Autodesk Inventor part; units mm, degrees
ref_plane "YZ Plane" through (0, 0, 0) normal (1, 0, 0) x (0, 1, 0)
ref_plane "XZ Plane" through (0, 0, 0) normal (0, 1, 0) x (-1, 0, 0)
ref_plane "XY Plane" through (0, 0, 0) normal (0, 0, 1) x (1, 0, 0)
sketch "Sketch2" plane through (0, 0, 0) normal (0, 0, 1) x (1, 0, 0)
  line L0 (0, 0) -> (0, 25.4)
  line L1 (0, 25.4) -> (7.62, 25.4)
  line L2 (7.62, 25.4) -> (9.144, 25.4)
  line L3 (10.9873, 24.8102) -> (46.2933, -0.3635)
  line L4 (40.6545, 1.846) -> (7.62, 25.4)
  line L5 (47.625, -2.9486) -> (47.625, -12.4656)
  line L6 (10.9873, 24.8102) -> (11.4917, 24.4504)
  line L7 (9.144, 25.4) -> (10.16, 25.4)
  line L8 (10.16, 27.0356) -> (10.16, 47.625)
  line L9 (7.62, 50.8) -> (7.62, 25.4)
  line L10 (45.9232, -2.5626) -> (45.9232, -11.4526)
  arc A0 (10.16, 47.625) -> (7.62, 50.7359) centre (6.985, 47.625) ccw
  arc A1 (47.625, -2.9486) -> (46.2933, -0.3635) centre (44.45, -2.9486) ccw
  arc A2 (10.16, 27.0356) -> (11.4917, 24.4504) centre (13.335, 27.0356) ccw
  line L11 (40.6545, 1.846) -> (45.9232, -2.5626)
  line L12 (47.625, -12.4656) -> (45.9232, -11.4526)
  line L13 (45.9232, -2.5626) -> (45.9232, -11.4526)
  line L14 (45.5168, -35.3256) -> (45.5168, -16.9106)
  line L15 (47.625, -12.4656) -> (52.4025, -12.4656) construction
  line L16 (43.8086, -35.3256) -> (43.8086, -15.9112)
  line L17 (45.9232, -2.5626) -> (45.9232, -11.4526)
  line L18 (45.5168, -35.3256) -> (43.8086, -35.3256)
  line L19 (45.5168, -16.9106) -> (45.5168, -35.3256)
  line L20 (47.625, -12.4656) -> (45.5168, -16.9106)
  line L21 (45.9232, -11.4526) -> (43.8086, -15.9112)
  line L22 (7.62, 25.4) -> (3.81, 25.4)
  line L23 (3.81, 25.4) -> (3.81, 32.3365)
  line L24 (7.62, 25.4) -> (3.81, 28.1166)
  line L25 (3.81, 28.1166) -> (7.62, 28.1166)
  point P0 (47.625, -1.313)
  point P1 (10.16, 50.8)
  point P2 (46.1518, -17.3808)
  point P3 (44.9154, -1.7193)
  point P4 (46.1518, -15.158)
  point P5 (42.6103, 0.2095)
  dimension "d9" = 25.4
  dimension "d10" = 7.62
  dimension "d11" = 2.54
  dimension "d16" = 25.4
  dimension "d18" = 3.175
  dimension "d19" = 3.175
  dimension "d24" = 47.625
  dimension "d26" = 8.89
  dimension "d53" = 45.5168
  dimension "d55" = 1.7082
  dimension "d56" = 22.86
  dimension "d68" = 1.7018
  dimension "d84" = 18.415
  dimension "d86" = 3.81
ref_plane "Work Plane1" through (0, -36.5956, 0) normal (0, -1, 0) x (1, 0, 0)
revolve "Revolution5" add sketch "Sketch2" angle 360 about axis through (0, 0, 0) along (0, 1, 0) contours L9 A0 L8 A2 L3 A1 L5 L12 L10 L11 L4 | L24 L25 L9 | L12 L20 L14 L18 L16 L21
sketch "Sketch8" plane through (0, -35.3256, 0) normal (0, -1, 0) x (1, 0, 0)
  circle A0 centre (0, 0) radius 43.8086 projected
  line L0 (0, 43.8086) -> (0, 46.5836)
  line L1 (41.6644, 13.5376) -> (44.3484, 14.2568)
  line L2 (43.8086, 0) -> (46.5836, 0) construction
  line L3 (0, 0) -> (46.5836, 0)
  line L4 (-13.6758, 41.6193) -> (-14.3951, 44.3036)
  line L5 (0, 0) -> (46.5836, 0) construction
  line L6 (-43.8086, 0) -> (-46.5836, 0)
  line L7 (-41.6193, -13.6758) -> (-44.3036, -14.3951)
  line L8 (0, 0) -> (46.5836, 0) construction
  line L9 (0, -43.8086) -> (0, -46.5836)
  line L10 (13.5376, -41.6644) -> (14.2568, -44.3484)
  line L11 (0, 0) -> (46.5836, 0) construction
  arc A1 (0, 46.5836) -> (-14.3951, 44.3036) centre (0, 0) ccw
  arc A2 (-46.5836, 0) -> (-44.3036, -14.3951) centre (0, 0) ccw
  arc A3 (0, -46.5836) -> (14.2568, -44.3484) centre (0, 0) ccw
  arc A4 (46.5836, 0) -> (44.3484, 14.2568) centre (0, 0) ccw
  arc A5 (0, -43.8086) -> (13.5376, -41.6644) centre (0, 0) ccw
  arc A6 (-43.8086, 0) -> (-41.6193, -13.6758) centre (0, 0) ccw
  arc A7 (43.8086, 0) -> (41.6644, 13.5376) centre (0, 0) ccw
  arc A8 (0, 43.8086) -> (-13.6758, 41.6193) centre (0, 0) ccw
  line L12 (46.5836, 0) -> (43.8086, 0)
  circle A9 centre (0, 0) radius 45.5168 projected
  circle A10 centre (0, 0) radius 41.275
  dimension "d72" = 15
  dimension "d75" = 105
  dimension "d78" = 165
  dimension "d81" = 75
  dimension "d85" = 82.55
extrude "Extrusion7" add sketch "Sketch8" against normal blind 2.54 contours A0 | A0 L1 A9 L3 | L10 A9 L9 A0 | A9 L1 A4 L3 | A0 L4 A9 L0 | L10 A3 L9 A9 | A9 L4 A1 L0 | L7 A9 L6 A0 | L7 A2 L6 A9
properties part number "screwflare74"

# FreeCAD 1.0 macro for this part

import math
import FreeCAD as App
import Part
import Sketcher
Q = App.Units.Quantity

doc = App.newDocument("Part")
body = doc.addObject("PartDesign::Body", "Body")

sketch1 = body.newObject("Sketcher::SketchObject", "Sketch")
sketch1.AttachmentSupport = (doc.getObject("XY_Plane"), [""])
sketch1.MapMode = "FlatFace"
sketch1.addGeometry(Part.LineSegment(App.Vector(7.6, 50.7, 0), App.Vector(7.6, 28.1, 0)), False)
sketch1.addGeometry(Part.LineSegment(App.Vector(7.6, 28.1, 0), App.Vector(3.8, 28.1, 0)), False)
sketch1.addGeometry(Part.LineSegment(App.Vector(3.8, 28.1, 0), App.Vector(7.6, 25.4, 0)), False)
sketch1.addGeometry(Part.LineSegment(App.Vector(7.6, 25.4, 0), App.Vector(40.7, 1.8, 0)), False)
sketch1.addGeometry(Part.LineSegment(App.Vector(40.7, 1.8, 0), App.Vector(45.9, -2.6, 0)), False)
sketch1.addGeometry(Part.LineSegment(App.Vector(45.9, -2.6, 0), App.Vector(45.9, -11.5, 0)), False)
sketch1.addGeometry(Part.LineSegment(App.Vector(45.9, -11.5, 0), App.Vector(43.8, -15.9, 0)), False)
sketch1.addGeometry(Part.LineSegment(App.Vector(43.8, -15.9, 0), App.Vector(43.8, -35.3, 0)), False)
sketch1.addGeometry(Part.LineSegment(App.Vector(43.8, -35.3, 0), App.Vector(45.5, -35.3, 0)), False)
sketch1.addGeometry(Part.LineSegment(App.Vector(45.5, -35.3, 0), App.Vector(45.5, -16.9, 0)), False)
sketch1.addGeometry(Part.LineSegment(App.Vector(45.5, -16.9, 0), App.Vector(47.6, -12.5, 0)), False)
sketch1.addGeometry(Part.LineSegment(App.Vector(47.6, -12.5, 0), App.Vector(47.6, -2.9, 0)), False)
sketch1.addGeometry(Part.ArcOfCircle(Part.Circle(App.Vector(44.5, -2.9, 0), App.Vector(0, 0, 1), 3.2), math.radians(0), math.radians(55)), False)
sketch1.addGeometry(Part.LineSegment(App.Vector(46.3, -0.4, 0), App.Vector(11.5, 24.5, 0)), False)
sketch1.addGeometry(Part.ArcOfCircle(Part.Circle(App.Vector(13.3, 27, 0), App.Vector(0, 0, 1), 3.2), math.radians(180), math.radians(235)), False)
sketch1.addGeometry(Part.LineSegment(App.Vector(10.2, 27, 0), App.Vector(10.2, 47.6, 0)), False)
sketch1.addGeometry(Part.ArcOfCircle(Part.Circle(App.Vector(7, 47.6, 0), App.Vector(0, 0, 1), 3.2), math.radians(0), math.radians(78)), False)
sketch1.addConstraint(Sketcher.Constraint("Coincident", 0, 2, 1, 1))
sketch1.addConstraint(Sketcher.Constraint("Coincident", 1, 2, 2, 1))
sketch1.addConstraint(Sketcher.Constraint("Coincident", 2, 2, 3, 1))
sketch1.addConstraint(Sketcher.Constraint("Coincident", 3, 2, 4, 1))
sketch1.addConstraint(Sketcher.Constraint("Coincident", 4, 2, 5, 1))
sketch1.addConstraint(Sketcher.Constraint("Coincident", 5, 2, 6, 1))
sketch1.addConstraint(Sketcher.Constraint("Coincident", 6, 2, 7, 1))
sketch1.addConstraint(Sketcher.Constraint("Coincident", 7, 2, 8, 1))
sketch1.addConstraint(Sketcher.Constraint("Coincident", 8, 2, 9, 1))
sketch1.addConstraint(Sketcher.Constraint("Coincident", 9, 2, 10, 1))
sketch1.addConstraint(Sketcher.Constraint("Coincident", 10, 2, 11, 1))
sketch1.addConstraint(Sketcher.Constraint("Tangent", 11, 2, 12, 1))
sketch1.addConstraint(Sketcher.Constraint("Tangent", 12, 2, 13, 1))
sketch1.addConstraint(Sketcher.Constraint("Tangent", 13, 2, 14, 2))
sketch1.addConstraint(Sketcher.Constraint("Tangent", 14, 1, 15, 1))
sketch1.addConstraint(Sketcher.Constraint("Tangent", 15, 2, 16, 1))
sketch1.addConstraint(Sketcher.Constraint("Coincident", 16, 2, 0, 1))
sketch1.addConstraint(Sketcher.Constraint("Vertical", 0))
sketch1.addConstraint(Sketcher.Constraint("Horizontal", 1))
sketch1.addConstraint(Sketcher.Constraint("Vertical", 5))
sketch1.addConstraint(Sketcher.Constraint("Vertical", 7))
sketch1.addConstraint(Sketcher.Constraint("Horizontal", 8))
sketch1.addConstraint(Sketcher.Constraint("Vertical", 9))
sketch1.addConstraint(Sketcher.Constraint("Vertical", 11))
sketch1.addConstraint(Sketcher.Constraint("Vertical", 15))
sketch1.addConstraint(Sketcher.Constraint("Equal", 12, 14))
sketch1.addConstraint(Sketcher.Constraint("Equal", 14, 16))
sketch1.addConstraint(Sketcher.Constraint("Parallel", 2, 3))
sketch1.addConstraint(Sketcher.Constraint("Parallel", 6, 10))
sketch1.addConstraint(Sketcher.Constraint("Parallel", 3, 13))
sketch1.addConstraint(Sketcher.Constraint("Vertical", 0, 2, 2, 2))
sketch1.addConstraint(Sketcher.Constraint("DistanceY", -1, 1, 2, 2, Q("1 in")))
sketch1.addConstraint(Sketcher.Constraint("Radius", 12, Q("0.125 in")))
sketch1.addConstraint(Sketcher.Constraint("DistanceX", 1, 2, 1, 1, Q("0.15 in")))
sketch1.addConstraint(Sketcher.Constraint("DistanceY", 5, 2, 5, 1, Q("0.35 in")))
sketch1.addConstraint(Sketcher.Constraint("DistanceX", -1, 1, 0, 2, Q("0.3 in")))
sketch1.addConstraint(Sketcher.Constraint("DistanceX", 0, 2, 14, 1, Q("0.1 in")))
sketch1.addConstraint(Sketcher.Constraint("DistanceY", 9, 1, 9, 2, Q("0.725 in")))
sketch1.addConstraint(Sketcher.Constraint("DistanceY", -1, 1, 16, 3, Q("1.875 in")))
sketch1.addConstraint(Sketcher.Constraint("DistanceX", -1, 1, 8, 2, Q("1.792 in")))
sketch1.addConstraint(Sketcher.Constraint("DistanceX", -1, 1, 10, 2, Q("1.875 in")))
sketch1.addConstraint(Sketcher.Constraint("DistanceX", 5, 2, 10, 2, Q("0.067 in")))
sketch1.addConstraint(Sketcher.Constraint("DistanceX", 8, 1, 8, 2, 1.7082))
sketch1.addConstraint(Sketcher.Constraint("Angle", 2, Q("-35.4896 deg")))
sketch1.addConstraint(Sketcher.Constraint("Angle", 4, Q("-39.921 deg")))
sketch1.addConstraint(Sketcher.Constraint("DistanceY", 15, 1, 15, 2, Q("0.8106 in")))
sketch1.addConstraint(Sketcher.Constraint("DistanceY", 9, 2, 10, 2, Q("0.175 in")))
sketch1.addConstraint(Sketcher.Constraint("DistanceX", 3, 2, 12, 2, Q("0.222 in")))
sketch1.addConstraint(Sketcher.Constraint("DistanceY", 7, 2, 7, 1, 19.4144))
revolution = body.newObject("PartDesign::Revolution", "Revolution")
revolution.Profile = sketch1
revolution.ReferenceAxis = (sketch1, ["V_Axis"])
revolution.Angle = 360

sketch2 = body.newObject("Sketcher::SketchObject", "Sketch001")
sketch2.AttachmentSupport = (doc.getObject("XZ_Plane"), [""])
sketch2.MapMode = "FlatFace"
sketch2.AttachmentOffset = App.Placement(App.Vector(0, 0, 35.3256), App.Rotation())
sketch2.addGeometry(Part.ArcOfCircle(Part.Circle(App.Vector(0, 0, 0), App.Vector(0, 0, 1), 43.8), math.radians(-72), math.radians(0)), False)
sketch2.addGeometry(Part.LineSegment(App.Vector(43.8, 0, 0), App.Vector(46.6, 0, 0)), False)
sketch2.addGeometry(Part.ArcOfCircle(Part.Circle(App.Vector(0, 0, 0), App.Vector(0, 0, 1), 46.6), math.radians(0), math.radians(17.82)), False)
sketch2.addGeometry(Part.LineSegment(App.Vector(44.3, 14.3, 0), App.Vector(41.7, 13.5, 0)), False)
sketch2.addGeometry(Part.ArcOfCircle(Part.Circle(App.Vector(0, 0, 0), App.Vector(0, 0, 1), 43.8), math.radians(18), math.radians(90)), False)
sketch2.addGeometry(Part.LineSegment(App.Vector(0, 43.8, 0), App.Vector(0, 46.6, 0)), False)
sketch2.addGeometry(Part.ArcOfCircle(Part.Circle(App.Vector(0, 0, 0), App.Vector(0, 0, 1), 46.6), math.radians(90), math.radians(108)), False)
sketch2.addGeometry(Part.LineSegment(App.Vector(-14.4, 44.3, 0), App.Vector(-13.7, 41.6, 0)), False)
sketch2.addGeometry(Part.ArcOfCircle(Part.Circle(App.Vector(0, 0, 0), App.Vector(0, 0, 1), 43.8), math.radians(108), math.radians(180)), False)
sketch2.addGeometry(Part.LineSegment(App.Vector(-43.8, 0, 0), App.Vector(-46.6, 0, 0)), False)
sketch2.addGeometry(Part.ArcOfCircle(Part.Circle(App.Vector(0, 0, 0), App.Vector(0, 0, 1), 46.6), math.radians(180), math.radians(198)), False)
sketch2.addGeometry(Part.LineSegment(App.Vector(-44.3, -14.4, 0), App.Vector(-41.6, -13.7, 0)), False)
sketch2.addGeometry(Part.ArcOfCircle(Part.Circle(App.Vector(0, 0, 0), App.Vector(0, 0, 1), 43.8), math.radians(-162), math.radians(-90)), False)
sketch2.addGeometry(Part.LineSegment(App.Vector(0, -43.8, 0), App.Vector(0, -46.6, 0)), False)
sketch2.addGeometry(Part.ArcOfCircle(Part.Circle(App.Vector(0, 0, 0), App.Vector(0, 0, 1), 46.6), math.radians(-90), math.radians(-72.18)), False)
sketch2.addGeometry(Part.LineSegment(App.Vector(14.3, -44.3, 0), App.Vector(13.5, -41.7, 0)), False)
sketch2.addGeometry(Part.Circle(App.Vector(0, 0, 0), App.Vector(0, 0, 1), 41.3), False)
sketch2.addConstraint(Sketcher.Constraint("Coincident", 0, 2, 1, 1))
sketch2.addConstraint(Sketcher.Constraint("Coincident", 1, 2, 2, 1))
sketch2.addConstraint(Sketcher.Constraint("Coincident", 2, 2, 3, 1))
sketch2.addConstraint(Sketcher.Constraint("Coincident", 3, 2, 4, 1))
sketch2.addConstraint(Sketcher.Constraint("Coincident", 4, 2, 5, 1))
sketch2.addConstraint(Sketcher.Constraint("Coincident", 5, 2, 6, 1))
sketch2.addConstraint(Sketcher.Constraint("Coincident", 6, 2, 7, 1))
sketch2.addConstraint(Sketcher.Constraint("Coincident", 7, 2, 8, 1))
sketch2.addConstraint(Sketcher.Constraint("Coincident", 8, 2, 9, 1))
sketch2.addConstraint(Sketcher.Constraint("Coincident", 9, 2, 10, 1))
sketch2.addConstraint(Sketcher.Constraint("Coincident", 10, 2, 11, 1))
sketch2.addConstraint(Sketcher.Constraint("Coincident", 11, 2, 12, 1))
sketch2.addConstraint(Sketcher.Constraint("Coincident", 12, 2, 13, 1))
sketch2.addConstraint(Sketcher.Constraint("Coincident", 13, 2, 14, 1))
sketch2.addConstraint(Sketcher.Constraint("Coincident", 14, 2, 15, 1))
sketch2.addConstraint(Sketcher.Constraint("Coincident", 15, 2, 0, 1))
sketch2.addConstraint(Sketcher.Constraint("Horizontal", 1))
sketch2.addConstraint(Sketcher.Constraint("Vertical", 5))
sketch2.addConstraint(Sketcher.Constraint("Horizontal", 9))
sketch2.addConstraint(Sketcher.Constraint("Vertical", 13))
sketch2.addConstraint(Sketcher.Constraint("Coincident", 0, 3, -1, 1))
sketch2.addConstraint(Sketcher.Constraint("Coincident", 4, 3, -1, 1))
sketch2.addConstraint(Sketcher.Constraint("Coincident", 8, 3, -1, 1))
sketch2.addConstraint(Sketcher.Constraint("Coincident", 12, 3, -1, 1))
sketch2.addConstraint(Sketcher.Constraint("Coincident", 16, 3, -1, 1))
sketch2.addConstraint(Sketcher.Constraint("Equal", 0, 4))
sketch2.addConstraint(Sketcher.Constraint("Equal", 4, 8))
sketch2.addConstraint(Sketcher.Constraint("Equal", 6, 10))
sketch2.addConstraint(Sketcher.Constraint("Equal", 8, 12))
sketch2.addConstraint(Sketcher.Constraint("Equal", 2, 14))
sketch2.addConstraint(Sketcher.Constraint("Symmetric", 1, 2, 9, 2, -1, 1))
sketch2.addConstraint(Sketcher.Constraint("Symmetric", 5, 2, 13, 2, -1, 1))
sketch2.addConstraint(Sketcher.Constraint("PointOnObject", 2, 3, -1))
sketch2.addConstraint(Sketcher.Constraint("PointOnObject", 6, 3, -2))
sketch2.addConstraint(Sketcher.Constraint("PointOnObject", 10, 3, -1))
sketch2.addConstraint(Sketcher.Constraint("PointOnObject", 14, 3, -2))
sketch2.addConstraint(Sketcher.Constraint("PointOnObject", 0, 2, -1))
sketch2.addConstraint(Sketcher.Constraint("PointOnObject", 4, 2, -2))
sketch2.addConstraint(Sketcher.Constraint("Perpendicular", 3, 7))
sketch2.addConstraint(Sketcher.Constraint("Perpendicular", 7, 11))
sketch2.addConstraint(Sketcher.Constraint("Perpendicular", 11, 15))
sketch2.addConstraint(Sketcher.Constraint("Equal", 9, 5))
sketch2.addConstraint(Sketcher.Constraint("Diameter", 16, Q("3.25 in")))
sketch2.addConstraint(Sketcher.Constraint("Angle", 3, Q("-164.9995 deg")))
sketch2.addConstraint(Sketcher.Constraint("Radius", 2, Q("1.8341 in")))
sketch2.addConstraint(Sketcher.Constraint("Radius", 0, 43.8086))
sketch2.addConstraint(Sketcher.Constraint("Radius", 6, 46.582))
sketch2.addConstraint(Sketcher.Constraint("DistanceX", -1, 1, 1, 2, Q("1.834 in")))
sketch2.addConstraint(Sketcher.Constraint("DistanceX", -1, 1, 2, 2, Q("1.746 in")))
sketch2.addConstraint(Sketcher.Constraint("DistanceY", 14, 2, -1, 1, Q("1.746 in")))
sketch2.addConstraint(Sketcher.Constraint("DistanceY", 4, 2, 6, 2, Q("0.0195 in")))
sketch2.addConstraint(Sketcher.Constraint("DistanceX", 10, 2, 8, 2, Q("0.0195 in")))
pad1 = body.newObject("PartDesign::Pad", "Pad")
pad1.Profile = sketch2
pad1.Length = Q("0.1 in")
pad1.Reversed = True

doc.recompute()
